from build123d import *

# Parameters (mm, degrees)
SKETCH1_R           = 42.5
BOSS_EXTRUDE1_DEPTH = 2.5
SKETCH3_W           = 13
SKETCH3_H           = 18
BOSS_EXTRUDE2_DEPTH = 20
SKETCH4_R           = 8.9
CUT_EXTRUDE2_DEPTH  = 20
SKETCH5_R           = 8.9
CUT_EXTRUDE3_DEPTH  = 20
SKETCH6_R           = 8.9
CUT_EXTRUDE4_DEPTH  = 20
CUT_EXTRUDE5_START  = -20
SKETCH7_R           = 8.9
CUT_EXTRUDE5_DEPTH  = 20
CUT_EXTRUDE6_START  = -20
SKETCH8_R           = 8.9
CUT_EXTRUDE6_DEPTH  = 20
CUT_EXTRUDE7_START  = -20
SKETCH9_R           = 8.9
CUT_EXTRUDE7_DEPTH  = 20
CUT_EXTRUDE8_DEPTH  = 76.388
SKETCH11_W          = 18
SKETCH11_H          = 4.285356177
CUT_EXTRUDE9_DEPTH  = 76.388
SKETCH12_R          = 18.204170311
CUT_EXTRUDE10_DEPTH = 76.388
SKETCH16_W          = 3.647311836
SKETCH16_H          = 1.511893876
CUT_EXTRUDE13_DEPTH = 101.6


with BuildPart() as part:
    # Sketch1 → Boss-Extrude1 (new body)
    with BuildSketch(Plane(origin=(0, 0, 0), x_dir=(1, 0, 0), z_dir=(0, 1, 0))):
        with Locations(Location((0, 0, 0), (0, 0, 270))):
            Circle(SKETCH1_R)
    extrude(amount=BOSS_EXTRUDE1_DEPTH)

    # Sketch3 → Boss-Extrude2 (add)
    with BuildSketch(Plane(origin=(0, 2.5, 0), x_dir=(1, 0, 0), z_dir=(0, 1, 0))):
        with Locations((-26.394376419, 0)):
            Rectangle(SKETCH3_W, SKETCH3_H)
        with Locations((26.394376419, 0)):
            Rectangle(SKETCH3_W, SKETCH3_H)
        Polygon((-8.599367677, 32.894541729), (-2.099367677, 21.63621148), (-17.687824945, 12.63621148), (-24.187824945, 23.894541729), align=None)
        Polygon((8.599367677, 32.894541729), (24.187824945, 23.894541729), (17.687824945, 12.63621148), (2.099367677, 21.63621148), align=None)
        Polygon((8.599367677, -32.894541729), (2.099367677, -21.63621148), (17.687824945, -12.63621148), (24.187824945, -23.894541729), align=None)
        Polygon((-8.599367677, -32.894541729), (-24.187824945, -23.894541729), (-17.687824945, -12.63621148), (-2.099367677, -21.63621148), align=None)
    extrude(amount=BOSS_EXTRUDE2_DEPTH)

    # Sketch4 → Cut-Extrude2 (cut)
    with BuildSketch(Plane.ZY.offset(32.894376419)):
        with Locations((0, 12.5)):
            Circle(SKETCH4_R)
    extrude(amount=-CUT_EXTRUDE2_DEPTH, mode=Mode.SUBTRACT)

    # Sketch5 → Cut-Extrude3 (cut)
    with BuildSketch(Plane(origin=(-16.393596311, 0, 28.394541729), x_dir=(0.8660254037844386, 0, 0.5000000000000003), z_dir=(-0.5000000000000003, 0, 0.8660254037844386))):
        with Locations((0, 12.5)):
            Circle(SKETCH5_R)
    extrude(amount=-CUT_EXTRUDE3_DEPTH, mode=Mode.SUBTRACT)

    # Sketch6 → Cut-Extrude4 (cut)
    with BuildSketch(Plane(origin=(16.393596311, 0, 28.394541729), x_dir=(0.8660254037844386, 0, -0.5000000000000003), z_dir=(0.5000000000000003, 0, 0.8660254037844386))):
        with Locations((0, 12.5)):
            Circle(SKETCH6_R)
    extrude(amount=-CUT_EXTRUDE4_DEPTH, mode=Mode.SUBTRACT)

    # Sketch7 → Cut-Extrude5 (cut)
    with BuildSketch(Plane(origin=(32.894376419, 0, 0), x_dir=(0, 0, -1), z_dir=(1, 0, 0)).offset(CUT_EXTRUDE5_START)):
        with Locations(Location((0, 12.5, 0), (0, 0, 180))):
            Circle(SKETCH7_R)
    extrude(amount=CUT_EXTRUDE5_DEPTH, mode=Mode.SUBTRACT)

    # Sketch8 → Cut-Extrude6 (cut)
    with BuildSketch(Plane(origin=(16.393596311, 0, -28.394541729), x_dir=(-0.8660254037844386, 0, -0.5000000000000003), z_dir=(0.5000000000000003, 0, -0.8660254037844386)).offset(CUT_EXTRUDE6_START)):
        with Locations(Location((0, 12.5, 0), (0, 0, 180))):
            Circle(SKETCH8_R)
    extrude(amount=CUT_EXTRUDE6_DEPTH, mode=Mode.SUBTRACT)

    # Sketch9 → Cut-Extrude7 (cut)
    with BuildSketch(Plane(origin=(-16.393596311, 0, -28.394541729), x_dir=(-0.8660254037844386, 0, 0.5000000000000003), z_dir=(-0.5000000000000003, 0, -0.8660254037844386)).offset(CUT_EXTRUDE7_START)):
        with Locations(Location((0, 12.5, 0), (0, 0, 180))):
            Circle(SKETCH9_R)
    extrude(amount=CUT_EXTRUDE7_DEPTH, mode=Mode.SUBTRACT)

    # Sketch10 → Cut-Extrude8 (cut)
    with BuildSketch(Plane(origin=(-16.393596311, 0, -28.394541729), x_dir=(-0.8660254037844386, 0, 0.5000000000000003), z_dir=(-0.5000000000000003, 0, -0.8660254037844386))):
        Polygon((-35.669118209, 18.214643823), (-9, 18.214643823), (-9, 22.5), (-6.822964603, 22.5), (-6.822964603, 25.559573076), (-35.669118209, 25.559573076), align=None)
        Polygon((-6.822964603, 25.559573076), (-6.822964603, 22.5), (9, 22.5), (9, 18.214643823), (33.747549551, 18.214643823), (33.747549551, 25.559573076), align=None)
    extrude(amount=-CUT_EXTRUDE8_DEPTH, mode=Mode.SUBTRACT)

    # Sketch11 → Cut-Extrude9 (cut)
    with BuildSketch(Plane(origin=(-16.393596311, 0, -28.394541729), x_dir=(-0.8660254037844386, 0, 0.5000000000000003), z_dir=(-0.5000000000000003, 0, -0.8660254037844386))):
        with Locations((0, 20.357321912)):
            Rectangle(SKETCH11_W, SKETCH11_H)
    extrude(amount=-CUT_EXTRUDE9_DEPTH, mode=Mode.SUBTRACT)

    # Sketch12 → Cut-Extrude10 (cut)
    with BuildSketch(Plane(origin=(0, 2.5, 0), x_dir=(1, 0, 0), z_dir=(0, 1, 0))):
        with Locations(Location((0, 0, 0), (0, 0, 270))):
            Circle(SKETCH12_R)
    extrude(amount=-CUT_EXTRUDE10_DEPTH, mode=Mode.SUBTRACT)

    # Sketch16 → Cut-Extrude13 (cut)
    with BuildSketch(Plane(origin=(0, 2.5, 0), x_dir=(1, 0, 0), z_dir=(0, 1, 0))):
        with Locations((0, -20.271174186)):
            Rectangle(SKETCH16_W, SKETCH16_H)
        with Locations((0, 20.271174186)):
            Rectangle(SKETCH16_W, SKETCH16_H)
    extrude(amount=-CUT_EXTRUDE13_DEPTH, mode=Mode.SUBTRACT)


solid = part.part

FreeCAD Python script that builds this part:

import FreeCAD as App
import Part
import Sketcher

V = App.Vector
Q = App.Units.Quantity

doc = App.newDocument("Part")
body = doc.addObject("PartDesign::Body", "Body")

sketch1 = body.newObject("Sketcher::SketchObject", "Sketch")
sketch1.AttachmentSupport = (doc.getObject("XZ_Plane"), [""])
sketch1.MapMode = "FlatFace"
sketch1.addGeometry(Part.Circle(V(0, 0, 0), V(0, 0, 1), 42.5), False)
sketch1.addConstraint([
    Sketcher.Constraint("Coincident", 0, 3, -1, 1),
    Sketcher.Constraint("Diameter", 0, Q("85 mm")),
])
pad1 = body.newObject("PartDesign::Pad", "Pad")
pad1.Profile = sketch1
pad1.Length = 2.5
pad1.Reversed = True

sketch2 = body.newObject("Sketcher::SketchObject", "Sketch001")
sketch2.AttachmentSupport = (doc.getObject("XZ_Plane"), [""])
sketch2.MapMode = "FlatFace"
sketch2.AttachmentOffset = App.Placement(V(0, 0, -2.5), App.Rotation())
sketch2.addGeometry([
    Part.LineSegment(V(-32.894376, -9, 0), V(-32.894376, 9, 0)),
    Part.LineSegment(V(-32.894376, 9, 0), V(-19.894376, 9, 0)),
    Part.LineSegment(V(-19.894376, 9, 0), V(-19.894376, -9, 0)),
    Part.LineSegment(V(-19.894376, -9, 0), V(-32.894376, -9, 0)),
    Part.LineSegment(V(19.894376, -9, 0), V(19.894376, 9, 0)),
    Part.LineSegment(V(19.894376, 9, 0), V(32.894376, 9, 0)),
    Part.LineSegment(V(32.894376, 9, 0), V(32.894376, -9, 0)),
    Part.LineSegment(V(32.894376, -9, 0), V(19.894376, -9, 0)),
    Part.LineSegment(V(-2.099368, -21.636211, 0), V(-8.599368, -32.894542, 0)),
    Part.LineSegment(V(-8.599368, -32.894542, 0), V(-24.187825, -23.894542, 0)),
    Part.LineSegment(V(-24.187825, -23.894542, 0), V(-17.687825, -12.636211, 0)),
    Part.LineSegment(V(-17.687825, -12.636211, 0), V(-2.099368, -21.636211, 0)),
    Part.LineSegment(V(24.187825, -23.894542, 0), V(8.599368, -32.894542, 0)),
    Part.LineSegment(V(8.599368, -32.894542, 0), V(2.099368, -21.636211, 0)),
    Part.LineSegment(V(2.099368, -21.636211, 0), V(17.687825, -12.636211, 0)),
    Part.LineSegment(V(17.687825, -12.636211, 0), V(24.187825, -23.894542, 0)),
    Part.LineSegment(V(2.099368, 21.636211, 0), V(8.599368, 32.894542, 0)),
    Part.LineSegment(V(8.599368, 32.894542, 0), V(24.187825, 23.894542, 0)),
    Part.LineSegment(V(24.187825, 23.894542, 0), V(17.687825, 12.636211, 0)),
    Part.LineSegment(V(17.687825, 12.636211, 0), V(2.099368, 21.636211, 0)),
    Part.LineSegment(V(-24.187825, 23.894542, 0), V(-8.599368, 32.894542, 0)),
    Part.LineSegment(V(-8.599368, 32.894542, 0), V(-2.099368, 21.636211, 0)),
    Part.LineSegment(V(-2.099368, 21.636211, 0), V(-17.687825, 12.636211, 0)),
    Part.LineSegment(V(-17.687825, 12.636211, 0), V(-24.187825, 23.894542, 0)),
], False)
sketch2.addConstraint([
    Sketcher.Constraint("Coincident", 0, 2, 1, 1),
    Sketcher.Constraint("Coincident", 1, 2, 2, 1),
    Sketcher.Constraint("Coincident", 2, 2, 3, 1),
    Sketcher.Constraint("Coincident", 3, 2, 0, 1),
    Sketcher.Constraint("Coincident", 4, 2, 5, 1),
    Sketcher.Constraint("Coincident", 5, 2, 6, 1),
    Sketcher.Constraint("Coincident", 6, 2, 7, 1),
    Sketcher.Constraint("Coincident", 7, 2, 4, 1),
    Sketcher.Constraint("Coincident", 8, 2, 9, 1),
    Sketcher.Constraint("Coincident", 9, 2, 10, 1),
    Sketcher.Constraint("Coincident", 10, 2, 11, 1),
    Sketcher.Constraint("Coincident", 11, 2, 8, 1),
    Sketcher.Constraint("Coincident", 12, 2, 13, 1),
    Sketcher.Constraint("Coincident", 13, 2, 14, 1),
    Sketcher.Constraint("Coincident", 14, 2, 15, 1),
    Sketcher.Constraint("Coincident", 15, 2, 12, 1),
    Sketcher.Constraint("Coincident", 16, 2, 17, 1),
    Sketcher.Constraint("Coincident", 17, 2, 18, 1),
    Sketcher.Constraint("Coincident", 18, 2, 19, 1),
    Sketcher.Constraint("Coincident", 19, 2, 16, 1),
    Sketcher.Constraint("Coincident", 20, 2, 21, 1),
    Sketcher.Constraint("Coincident", 21, 2, 22, 1),
    Sketcher.Constraint("Coincident", 22, 2, 23, 1),
    Sketcher.Constraint("Coincident", 23, 2, 20, 1),
    Sketcher.Constraint("Vertical", 0),
    Sketcher.Constraint("Horizontal", 1),
    Sketcher.Constraint("Vertical", 2),
    Sketcher.Constraint("Horizontal", 3),
    Sketcher.Constraint("Vertical", 4),
    Sketcher.Constraint("Horizontal", 5),
    Sketcher.Constraint("Vertical", 6),
    Sketcher.Constraint("Horizontal", 7),
    Sketcher.Constraint("Symmetric", 2, 2, 4, 2, -1, 1),
    Sketcher.Constraint("Symmetric", 0, 2, 6, 2, -1, 1),
    Sketcher.Constraint("Symmetric", 8, 2, 16, 2, -1, 1),
    Sketcher.Constraint("Symmetric", 9, 2, 17, 2, -1, 1),
    Sketcher.Constraint("Symmetric", 10, 2, 18, 2, -1, 1),
    Sketcher.Constraint("Symmetric", 11, 2, 19, 2, -1, 1),
    Sketcher.Constraint("Symmetric", 12, 2, 20, 2, -1, 1),
    Sketcher.Constraint("Symmetric", 13, 2, 21, 2, -1, 1),
    Sketcher.Constraint("Symmetric", 14, 2, 22, 2, -1, 1),
    Sketcher.Constraint("Symmetric", 15, 2, 23, 2, -1, 1),
    Sketcher.Constraint("Symmetric", 8, 2, 12, 2, -2),
    Sketcher.Constraint("Symmetric", 11, 2, 13, 2, -2),
    Sketcher.Constraint("Symmetric", 10, 2, 14, 2, -2),
    Sketcher.Constraint("Symmetric", 9, 2, 15, 2, -2),
    Sketcher.Constraint("Perpendicular", 8, 9),
    Sketcher.Constraint("Perpendicular", 9, 10),
    Sketcher.Constraint("Perpendicular", 10, 11),
    Sketcher.Constraint("Horizontal", 1, 2, 4, 2),
    Sketcher.Constraint("DistanceX", 1, 1, 1, 2, Q("13 mm")),
    Sketcher.Constraint("DistanceY", 0, 1, 0, 2, Q("18 mm")),
    Sketcher.Constraint("Angle", 8, Q("-120 deg")),
    Sketcher.Constraint("Distance", 8, Q("13 mm")),
    Sketcher.Constraint("Distance", 9, Q("18 mm")),
    Sketcher.Constraint("DistanceY", 8, 2, -1, 1, Q("32.894542 mm")),
    Sketcher.Constraint("DistanceX", 2, 2, 8, 2, Q("11.295009 mm")),
    Sketcher.Constraint("DistanceX", 0, 2, -1, 1, Q("32.894376 mm")),
])
pad2 = body.newObject("PartDesign::Pad", "Pad001")
pad2.Profile = sketch2
pad2.Length = 20
pad2.Reversed = True

sketch3 = body.newObject("Sketcher::SketchObject", "Sketch002")
sketch3.AttachmentSupport = (doc.getObject("YZ_Plane"), [""])
sketch3.MapMode = "FlatFace"
sketch3.AttachmentOffset = App.Placement(V(0, 0, -32.894376), App.Rotation())
sketch3.addGeometry(Part.Circle(V(12.5, 0, 0), V(0, 0, 1), 8.9), False)
sketch3.addConstraint([
    Sketcher.Constraint("PointOnObject", 0, 3, -1),
    Sketcher.Constraint("Diameter", 0, Q("17.8 mm")),
    Sketcher.Constraint("DistanceX", -1, 1, 0, 3, Q("12.5 mm")),
])
pocket1 = body.newObject("PartDesign::Pocket", "Pocket")
pocket1.Profile = sketch3
pocket1.Length = 20
pocket1.Reversed = True

sketch4 = body.newObject("Sketcher::SketchObject", "Sketch003")
sketch4.Placement = App.Placement(V(-16.393596, 0, 28.394542), App.Rotation(V(0.866025404, 0, 0.5), V(0, 1, 0), V(-0.5, 0, 0.866025404), "ZXY"))
sketch4.addGeometry(Part.Circle(V(0, 12.5, 0), V(0, 0, 1), 8.9), False)
sketch4.addConstraint([
    Sketcher.Constraint("PointOnObject", 0, 3, -2),
    Sketcher.Constraint("Diameter", 0, Q("17.8 mm")),
    Sketcher.Constraint("DistanceY", -1, 1, 0, 3, Q("12.5 mm")),
])
pocket2 = body.newObject("PartDesign::Pocket", "Pocket001")
pocket2.Profile = sketch4
pocket2.Length = 20

sketch5 = body.newObject("Sketcher::SketchObject", "Sketch004")
sketch5.Placement = App.Placement(V(16.393596, 0, 28.394542), App.Rotation(V(0.866025404, 0, -0.5), V(0, 1, 0), V(0.5, 0, 0.866025404), "ZXY"))
sketch5.addGeometry(Part.Circle(V(0, 12.5, 0), V(0, 0, 1), 8.9), False)
sketch5.addConstraint([
    Sketcher.Constraint("PointOnObject", 0, 3, -2),
    Sketcher.Constraint("Diameter", 0, Q("17.8 mm")),
    Sketcher.Constraint("DistanceY", -1, 1, 0, 3, Q("12.5 mm")),
])
pocket3 = body.newObject("PartDesign::Pocket", "Pocket002")
pocket3.Profile = sketch5
pocket3.Length = 20

sketch6 = body.newObject("Sketcher::SketchObject", "Sketch005")
sketch6.AttachmentSupport = (doc.getObject("YZ_Plane"), [""])
sketch6.MapMode = "FlatFace"
sketch6.AttachmentOffset = App.Placement(V(0, 0, 12.894376), App.Rotation())
sketch6.addGeometry(Part.Circle(V(12.5, 0, 0), V(0, 0, 1), 8.9), False)
sketch6.addConstraint([
    Sketcher.Constraint("PointOnObject", 0, 3, -1),
    Sketcher.Constraint("Diameter", 0, Q("17.8 mm")),
    Sketcher.Constraint("DistanceX", -1, 1, 0, 3, Q("12.5 mm")),
])
pocket4 = body.newObject("PartDesign::Pocket", "Pocket003")
pocket4.Profile = sketch6
pocket4.Length = 20
pocket4.Reversed = True

sketch7 = body.newObject("Sketcher::SketchObject", "Sketch006")
sketch7.Placement = App.Placement(V(6.393596, 0, -11.074034), App.Rotation(V(-0.866025404, 0, -0.5), V(0, 1, 0), V(0.5, 0, -0.866025404), "ZXY"))
sketch7.addGeometry(Part.Circle(V(0, 12.5, 0), V(0, 0, 1), 8.9), False)
sketch7.addConstraint([
    Sketcher.Constraint("PointOnObject", 0, 3, -2),
    Sketcher.Constraint("Diameter", 0, Q("17.8 mm")),
    Sketcher.Constraint("DistanceY", -1, 1, 0, 3, Q("12.5 mm")),
])
pocket5 = body.newObject("PartDesign::Pocket", "Pocket004")
pocket5.Profile = sketch7
pocket5.Length = 20
pocket5.Reversed = True

sketch8 = body.newObject("Sketcher::SketchObject", "Sketch007")
sketch8.Placement = App.Placement(V(-6.393596, 0, -11.074034), App.Rotation(V(-0.866025404, 0, 0.5), V(0, 1, 0), V(-0.5, 0, -0.866025404), "ZXY"))
sketch8.addGeometry(Part.Circle(V(0, 12.5, 0), V(0, 0, 1), 8.9), False)
sketch8.addConstraint([
    Sketcher.Constraint("PointOnObject", 0, 3, -2),
    Sketcher.Constraint("Diameter", 0, Q("17.8 mm")),
    Sketcher.Constraint("DistanceY", -1, 1, 0, 3, Q("12.5 mm")),
])
pocket6 = body.newObject("PartDesign::Pocket", "Pocket005")
pocket6.Profile = sketch8
pocket6.Length = 20
pocket6.Reversed = True

sketch9 = body.newObject("Sketcher::SketchObject", "Sketch008")
sketch9.Placement = App.Placement(V(-16.393596, 0, -28.394542), App.Rotation(V(-0.866025404, 0, 0.5), V(0, 1, 0), V(-0.5, 0, -0.866025404), "ZXY"))
sketch9.addGeometry([
    Part.LineSegment(V(-35.669118, 18.214644, 0), V(-9, 18.214644, 0)),
    Part.LineSegment(V(-9, 18.214644, 0), V(-9, 22.5, 0)),
    Part.LineSegment(V(-9, 22.5, 0), V(9, 22.5, 0)),
    Part.LineSegment(V(9, 22.5, 0), V(9, 18.214644, 0)),
    Part.LineSegment(V(9, 18.214644, 0), V(33.74755, 18.214644, 0)),
    Part.LineSegment(V(33.74755, 18.214644, 0), V(33.74755, 25.559573, 0)),
    Part.LineSegment(V(33.74755, 25.559573, 0), V(-35.669118, 25.559573, 0)),
    Part.LineSegment(V(-35.669118, 25.559573, 0), V(-35.669118, 18.214644, 0)),
], False)
sketch9.addConstraint([
    Sketcher.Constraint("Coincident", 0, 2, 1, 1),
    Sketcher.Constraint("Coincident", 1, 2, 2, 1),
    Sketcher.Constraint("Coincident", 2, 2, 3, 1),
    Sketcher.Constraint("Coincident", 3, 2, 4, 1),
    Sketcher.Constraint("Coincident", 4, 2, 5, 1),
    Sketcher.Constraint("Coincident", 5, 2, 6, 1),
    Sketcher.Constraint("Coincident", 6, 2, 7, 1),
    Sketcher.Constraint("Coincident", 7, 2, 0, 1),
    Sketcher.Constraint("Horizontal", 0),
    Sketcher.Constraint("Vertical", 1),
    Sketcher.Constraint("Horizontal", 2),
    Sketcher.Constraint("Vertical", 3),
    Sketcher.Constraint("Horizontal", 4),
    Sketcher.Constraint("Vertical", 5),
    Sketcher.Constraint("Horizontal", 6),
    Sketcher.Constraint("Vertical", 7),
    Sketcher.Constraint("Symmetric", 0, 2, 3, 2, -2),
    Sketcher.Constraint("DistanceX", 2, 1, 2, 2, Q("18 mm")),
    Sketcher.Constraint("DistanceY", -1, 1, 1, 2, Q("22.5 mm")),
    Sketcher.Constraint("DistanceX", 0, 1, 0, 2, Q("26.669118 mm")),
    Sketcher.Constraint("DistanceX", 4, 1, 4, 2, Q("24.74755 mm")),
    Sketcher.Constraint("DistanceY", 5, 1, 5, 2, Q("7.344929 mm")),
    Sketcher.Constraint("DistanceY", 1, 1, 1, 2, Q("4.285356 mm")),
])
pocket7 = body.newObject("PartDesign::Pocket", "Pocket006")
pocket7.Profile = sketch9
pocket7.Length = 76.388

sketch10 = body.newObject("Sketcher::SketchObject", "Sketch009")
sketch10.Placement = App.Placement(V(-16.393596, 0, -28.394542), App.Rotation(V(-0.866025404, 0, 0.5), V(0, 1, 0), V(-0.5, 0, -0.866025404), "ZXY"))
sketch10.addGeometry([
    Part.LineSegment(V(-9, 22.5, 0), V(-9, 18.214644, 0)),
    Part.LineSegment(V(-9, 18.214644, 0), V(9, 18.214644, 0)),
    Part.LineSegment(V(9, 18.214644, 0), V(9, 22.5, 0)),
    Part.LineSegment(V(9, 22.5, 0), V(-9, 22.5, 0)),
], False)
sketch10.addConstraint([
    Sketcher.Constraint("Coincident", 0, 2, 1, 1),
    Sketcher.Constraint("Coincident", 1, 2, 2, 1),
    Sketcher.Constraint("Coincident", 2, 2, 3, 1),
    Sketcher.Constraint("Coincident", 3, 2, 0, 1),
    Sketcher.Constraint("Vertical", 0),
    Sketcher.Constraint("Horizontal", 1),
    Sketcher.Constraint("Vertical", 2),
    Sketcher.Constraint("Horizontal", 3),
    Sketcher.Constraint("DistanceX", 1, 1, 1, 2, Q("18 mm")),
    Sketcher.Constraint("DistanceX", 0, 2, -1, 1, Q("9 mm")),
    Sketcher.Constraint("DistanceY", -1, 1, 2, 2, Q("22.5 mm")),
    Sketcher.Constraint("DistanceY", 0, 2, 0, 1, Q("4.285356 mm")),
])
pocket8 = body.newObject("PartDesign::Pocket", "Pocket007")
pocket8.Profile = sketch10
pocket8.Length = 76.388

sketch11 = body.newObject("Sketcher::SketchObject", "Sketch010")
sketch11.AttachmentSupport = (doc.getObject("XZ_Plane"), [""])
sketch11.MapMode = "FlatFace"
sketch11.AttachmentOffset = App.Placement(V(0, 0, -2.5), App.Rotation())
sketch11.addGeometry(Part.Circle(V(0, 0, 0), V(0, 0, 1), 18.20417), False)
sketch11.addConstraint([
    Sketcher.Constraint("Coincident", 0, 3, -1, 1),
    Sketcher.Constraint("Diameter", 0, Q("36.408341 mm")),
])
pocket9 = body.newObject("PartDesign::Pocket", "Pocket008")
pocket9.Profile = sketch11
pocket9.Length = 76.388
pocket9.Reversed = True

sketch12 = body.newObject("Sketcher::SketchObject", "Sketch011")
sketch12.AttachmentSupport = (doc.getObject("XZ_Plane"), [""])
sketch12.MapMode = "FlatFace"
sketch12.AttachmentOffset = App.Placement(V(0, 0, -2.5), App.Rotation())
sketch12.addGeometry([
    Part.LineSegment(V(-1.823656, 19.515227, 0), V(-1.823656, 21.027121, 0)),
    Part.LineSegment(V(-1.823656, 21.027121, 0), V(1.823656, 21.027121, 0)),
    Part.LineSegment(V(1.823656, 21.027121, 0), V(1.823656, 19.515227, 0)),
    Part.LineSegment(V(1.823656, 19.515227, 0), V(-1.823656, 19.515227, 0)),
    Part.LineSegment(V(-1.823656, -21.027121, 0), V(-1.823656, -19.515227, 0)),
    Part.LineSegment(V(-1.823656, -19.515227, 0), V(1.823656, -19.515227, 0)),
    Part.LineSegment(V(1.823656, -19.515227, 0), V(1.823656, -21.027121, 0)),
    Part.LineSegment(V(1.823656, -21.027121, 0), V(-1.823656, -21.027121, 0)),
], False)
sketch12.addConstraint([
    Sketcher.Constraint("Coincident", 0, 2, 1, 1),
    Sketcher.Constraint("Coincident", 1, 2, 2, 1),
    Sketcher.Constraint("Coincident", 2, 2, 3, 1),
    Sketcher.Constraint("Coincident", 3, 2, 0, 1),
    Sketcher.Constraint("Coincident", 4, 2, 5, 1),
    Sketcher.Constraint("Coincident", 5, 2, 6, 1),
    Sketcher.Constraint("Coincident", 6, 2, 7, 1),
    Sketcher.Constraint("Coincident", 7, 2, 4, 1),
    Sketcher.Constraint("Vertical", 0),
    Sketcher.Constraint("Horizontal", 1),
    Sketcher.Constraint("Vertical", 2),
    Sketcher.Constraint("Horizontal", 3),
    Sketcher.Constraint("Vertical", 4),
    Sketcher.Constraint("Horizontal", 5),
    Sketcher.Constraint("Vertical", 6),
    Sketcher.Constraint("Horizontal", 7),
    Sketcher.Constraint("Symmetric", 2, 2, 4, 2, -1, 1),
    Sketcher.Constraint("Symmetric", 0, 2, 6, 2, -1, 1),
    Sketcher.Constraint("Vertical", 3, 2, 4, 2),
    Sketcher.Constraint("DistanceX", 1, 1, 1, 2, Q("3.647312 mm")),
    Sketcher.Constraint("DistanceY", 0, 1, 0, 2, Q("1.511894 mm")),
    Sketcher.Constraint("DistanceY", -1, 1, 0, 2, Q("21.027121 mm")),
])
pocket10 = body.newObject("PartDesign::Pocket", "Pocket009")
pocket10.Profile = sketch12
pocket10.Length = 101.6
pocket10.Reversed = True

doc.recompute()
